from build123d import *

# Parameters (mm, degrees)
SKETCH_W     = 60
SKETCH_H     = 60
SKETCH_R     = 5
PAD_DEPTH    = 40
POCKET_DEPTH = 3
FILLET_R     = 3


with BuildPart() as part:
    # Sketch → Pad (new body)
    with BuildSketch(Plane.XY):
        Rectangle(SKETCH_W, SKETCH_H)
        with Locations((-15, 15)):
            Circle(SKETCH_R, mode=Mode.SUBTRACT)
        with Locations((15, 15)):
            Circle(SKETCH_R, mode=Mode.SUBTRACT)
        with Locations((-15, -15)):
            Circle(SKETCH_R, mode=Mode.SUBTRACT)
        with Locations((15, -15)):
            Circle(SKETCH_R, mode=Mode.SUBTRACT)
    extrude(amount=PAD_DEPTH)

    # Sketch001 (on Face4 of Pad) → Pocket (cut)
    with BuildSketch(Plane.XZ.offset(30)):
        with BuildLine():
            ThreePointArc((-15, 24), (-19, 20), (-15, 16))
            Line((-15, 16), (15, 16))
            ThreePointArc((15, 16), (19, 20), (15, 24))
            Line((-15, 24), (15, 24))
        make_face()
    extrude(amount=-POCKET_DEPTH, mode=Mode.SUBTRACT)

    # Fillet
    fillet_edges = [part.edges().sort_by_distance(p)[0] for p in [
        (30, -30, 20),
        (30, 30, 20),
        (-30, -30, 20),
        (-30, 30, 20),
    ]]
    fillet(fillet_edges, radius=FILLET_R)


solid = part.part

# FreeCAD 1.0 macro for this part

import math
import FreeCAD as App
import Part
import Sketcher
from FreeCAD import Vector
Q = App.Units.Quantity


def edges_at(feature, points):
    """Names of the edges that pass closest to the given points."""
    edges = feature.Shape.Edges
    near = lambda p: min(range(len(edges)), key=lambda i: edges[i].distToShape(Part.Vertex(*p))[0])
    return sorted({f"Edge{near(p) + 1}" for p in points})

doc = App.newDocument("Part")
body = doc.addObject("PartDesign::Body", "Body")

# Sketch on XY plane
sketch1 = body.newObject("Sketcher::SketchObject", "Sketch")
sketch1.AttachmentSupport = (doc.getObject("XY_Plane"), [""])
sketch1.MapMode = "FlatFace"
sketch1.addGeometry([
    Part.LineSegment(Vector(-30, 30, 0), Vector(-30, -30, 0)),  # 0
    Part.LineSegment(Vector(-30, -30, 0), Vector(30, -30, 0)),  # 1
    Part.LineSegment(Vector(30, -30, 0), Vector(30, 30, 0)),  # 2
    Part.LineSegment(Vector(30, 30, 0), Vector(-30, 30, 0)),  # 3
    Part.Circle(Vector(-15, -15, 0), Vector(0, 0, 1), 5),  # 4
    Part.Circle(Vector(15, -15, 0), Vector(0, 0, 1), 5),  # 5
    Part.Circle(Vector(-15, 15, 0), Vector(0, 0, 1), 5),  # 6
    Part.Circle(Vector(15, 15, 0), Vector(0, 0, 1), 5),  # 7
], False)
sketch1.addConstraint([
    Sketcher.Constraint("Coincident", 0, 2, 1, 1),
    Sketcher.Constraint("Coincident", 1, 2, 2, 1),
    Sketcher.Constraint("Coincident", 2, 2, 3, 1),
    Sketcher.Constraint("Coincident", 3, 2, 0, 1),
    Sketcher.Constraint("Vertical", 0),
    Sketcher.Constraint("Horizontal", 1),
    Sketcher.Constraint("Vertical", 2),
    Sketcher.Constraint("Horizontal", 3),
    Sketcher.Constraint("Equal", 4, 5),
    Sketcher.Constraint("Equal", 5, 6),
    Sketcher.Constraint("Equal", 6, 7),
    Sketcher.Constraint("Symmetric", 5, 3, 6, 3, -1, 1),
    Sketcher.Constraint("Symmetric", 4, 3, 7, 3, -1, 1),
    Sketcher.Constraint("Symmetric", 0, 2, 2, 2, -1, 1),
    Sketcher.Constraint("Symmetric", 4, 3, 5, 3, -2),
    Sketcher.Constraint("Equal", 3, 0),
    Sketcher.Constraint("Diameter", 4, Q("10 mm")),
    Sketcher.Constraint("DistanceX", 1, 1, 1, 2, Q("60 mm")),
    Sketcher.Constraint("DistanceX", 4, 3, -1, 1, Q("15 mm")),
    Sketcher.Constraint("DistanceY", 4, 3, -1, 1, Q("15 mm")),
])
pad1 = body.newObject("PartDesign::Pad", "Pad")
pad1.Profile = sketch1
pad1.Length = 40

# Sketch on XZ plane
sketch2 = body.newObject("Sketcher::SketchObject", "Sketch001")
sketch2.AttachmentSupport = (doc.getObject("XZ_Plane"), [""])
sketch2.MapMode = "FlatFace"
sketch2.AttachmentOffset = App.Placement(Vector(0, 0, 30), App.Rotation())
sketch2.addGeometry([
    Part.ArcOfCircle(Part.Circle(Vector(-15, 20, 0), Vector(0, 0, 1), 4), math.radians(90), math.radians(270)),
    Part.LineSegment(Vector(-15, 16, 0), Vector(15, 16, 0)),
    Part.ArcOfCircle(Part.Circle(Vector(15, 20, 0), Vector(0, 0, 1), 4), math.radians(-90), math.radians(90)),
    Part.LineSegment(Vector(15, 24, 0), Vector(-15, 24, 0)),
], False)
sketch2.addConstraint([
    Sketcher.Constraint("Tangent", 0, 2, 1, 1),
    Sketcher.Constraint("Tangent", 1, 2, 2, 1),
    Sketcher.Constraint("Tangent", 2, 2, 3, 1),
    Sketcher.Constraint("Tangent", 3, 2, 0, 1),
    Sketcher.Constraint("Horizontal", 1),
    Sketcher.Constraint("Horizontal", 3),
    Sketcher.Constraint("Radius", 0, Q("4 mm")),
    Sketcher.Constraint("DistanceX", 1, 1, 1, 2, Q("30 mm")),
    Sketcher.Constraint("DistanceX", 0, 3, -1, 1, Q("15 mm")),
    Sketcher.Constraint("DistanceY", -1, 1, 0, 3, Q("20 mm")),
])
pocket1 = body.newObject("PartDesign::Pocket", "Pocket")
pocket1.Profile = sketch2
pocket1.Length = 3
doc.recompute()

fillet = body.newObject("PartDesign::Fillet", "Fillet")
fillet.Base = (pocket1, edges_at(pocket1, [
    (30, -30, 20),
    (30, 30, 20),
    (-30, -30, 20),
    (-30, 30, 20),
]))
fillet.Radius = 3

doc.recompute()
